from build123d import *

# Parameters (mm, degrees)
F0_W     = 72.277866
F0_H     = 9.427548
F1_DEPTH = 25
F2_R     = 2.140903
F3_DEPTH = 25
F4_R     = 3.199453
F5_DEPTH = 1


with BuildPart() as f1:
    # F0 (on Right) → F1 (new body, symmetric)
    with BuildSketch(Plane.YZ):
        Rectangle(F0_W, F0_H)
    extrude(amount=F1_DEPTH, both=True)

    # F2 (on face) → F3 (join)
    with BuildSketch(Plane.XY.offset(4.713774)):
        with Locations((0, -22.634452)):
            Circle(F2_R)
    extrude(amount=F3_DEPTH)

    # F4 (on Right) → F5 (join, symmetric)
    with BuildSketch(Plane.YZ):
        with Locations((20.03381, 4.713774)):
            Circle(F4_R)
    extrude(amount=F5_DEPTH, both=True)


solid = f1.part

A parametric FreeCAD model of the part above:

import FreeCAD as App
import Part
import Sketcher


def add_polygon(sketch, points):
    """Adds a closed chain of lines whose ends are joined by coincident constraints."""
    first, n = sketch.GeometryCount, len(points)
    for a, b in zip(points, points[1:] + points[:1]):
        sketch.addGeometry(Part.LineSegment(App.Vector(*a, 0), App.Vector(*b, 0)), False)
    for i in range(n):
        sketch.addConstraint(Sketcher.Constraint("Coincident", first + i, 2, first + (i + 1) % n, 1))

doc = App.newDocument("Part")
body = doc.addObject("PartDesign::Body", "Body")

# Sketch on YZ plane
sketch1 = body.newObject("Sketcher::SketchObject", "Sketch")
sketch1.AttachmentSupport = (doc.getObject("YZ_Plane"), [""])
sketch1.MapMode = "FlatFace"
add_polygon(sketch1, [(-36.138933, 4.713774), (-36.138933, -4.713774), (36.138933, -4.713774), (36.138933, 4.713774)])  # lines 0-3
sketch1.addConstraint(Sketcher.Constraint("Vertical", 0))
sketch1.addConstraint(Sketcher.Constraint("Horizontal", 1))
sketch1.addConstraint(Sketcher.Constraint("Vertical", 2))
sketch1.addConstraint(Sketcher.Constraint("Horizontal", 3))
sketch1.addConstraint(Sketcher.Constraint("Symmetric", 0, 2, 2, 2, -1, 1))
sketch1.addConstraint(Sketcher.Constraint("DistanceX", 1, 1, 1, 2, 72.277866))
sketch1.addConstraint(Sketcher.Constraint("DistanceY", 0, 2, 0, 1, 9.427548))
pad1 = body.newObject("PartDesign::Pad", "Pad")
pad1.Profile = sketch1
pad1.Length = 50
pad1.Midplane = True

# Sketch on XY plane
sketch2 = body.newObject("Sketcher::SketchObject", "Sketch001")
sketch2.AttachmentSupport = (doc.getObject("XY_Plane"), [""])
sketch2.MapMode = "FlatFace"
sketch2.AttachmentOffset = App.Placement(App.Vector(0, 0, 4.713774), App.Rotation())
sketch2.addGeometry(Part.Circle(App.Vector(0, -22.634452, 0), App.Vector(0, 0, 1), 2.140903), False)
sketch2.addConstraint(Sketcher.Constraint("PointOnObject", 0, 3, -2))
sketch2.addConstraint(Sketcher.Constraint("Diameter", 0, 4.281806))
sketch2.addConstraint(Sketcher.Constraint("DistanceY", 0, 3, -1, 1, 22.634452))
pad2 = body.newObject("PartDesign::Pad", "Pad001")
pad2.Profile = sketch2
pad2.Length = 25

# Sketch on YZ plane
sketch3 = body.newObject("Sketcher::SketchObject", "Sketch002")
sketch3.AttachmentSupport = (doc.getObject("YZ_Plane"), [""])
sketch3.MapMode = "FlatFace"
sketch3.addGeometry(Part.Circle(App.Vector(20.03381, 4.713774, 0), App.Vector(0, 0, 1), 3.199453), False)
sketch3.addConstraint(Sketcher.Constraint("Diameter", 0, 6.398906))
sketch3.addConstraint(Sketcher.Constraint("DistanceX", -1, 1, 0, 3, 20.03381))
sketch3.addConstraint(Sketcher.Constraint("DistanceY", -1, 1, 0, 3, 4.713774))
pad3 = body.newObject("PartDesign::Pad", "Pad002")
pad3.Profile = sketch3
pad3.Length = 2
pad3.Midplane = True

doc.recompute()
